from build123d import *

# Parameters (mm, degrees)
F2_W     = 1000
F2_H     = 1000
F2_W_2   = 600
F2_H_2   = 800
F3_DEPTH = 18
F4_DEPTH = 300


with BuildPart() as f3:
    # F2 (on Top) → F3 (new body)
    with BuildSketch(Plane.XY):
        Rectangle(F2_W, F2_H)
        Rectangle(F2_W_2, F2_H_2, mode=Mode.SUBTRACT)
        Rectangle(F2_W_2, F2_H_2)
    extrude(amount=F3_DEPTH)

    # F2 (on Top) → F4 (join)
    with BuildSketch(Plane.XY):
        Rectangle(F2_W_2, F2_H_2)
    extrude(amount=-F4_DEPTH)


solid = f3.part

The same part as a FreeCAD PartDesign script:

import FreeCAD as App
import Part
import Sketcher

V = App.Vector
Q = App.Units.Quantity

doc = App.newDocument("Part")
body = doc.addObject("PartDesign::Body", "Body")

# Sketch on XY plane
sketch1 = doc.addObject("Sketcher::SketchObject", "Sketch")
body.addObject(sketch1)
sketch1.AttachmentSupport = (doc.XY_Plane, [""])
sketch1.MapMode = "FlatFace"
sketch1.addGeometry([
    Part.LineSegment(V(-500, 500, 0), V(-500, -500, 0)),
    Part.LineSegment(V(-500, -500, 0), V(500, -500, 0)),
    Part.LineSegment(V(500, -500, 0), V(500, 500, 0)),
    Part.LineSegment(V(500, 500, 0), V(-500, 500, 0)),
], False)
sketch1.addConstraint([
    Sketcher.Constraint("Coincident", 0, 2, 1, 1),
    Sketcher.Constraint("Coincident", 1, 2, 2, 1),
    Sketcher.Constraint("Coincident", 2, 2, 3, 1),
    Sketcher.Constraint("Coincident", 3, 2, 0, 1),
    Sketcher.Constraint("Vertical", 0),
    Sketcher.Constraint("Horizontal", 1),
    Sketcher.Constraint("Vertical", 2),
    Sketcher.Constraint("Horizontal", 3),
    Sketcher.Constraint("Symmetric", 0, 2, 2, 2, -1, 1),
    Sketcher.Constraint("Equal", 3, 0),
    Sketcher.Constraint("DistanceX", 1, 1, 1, 2, Q("1000 mm")),
])
pad1 = doc.addObject("PartDesign::Pad", "Pad")
body.addObject(pad1)
pad1.Profile = sketch1
pad1.Length = 18

# Sketch on XY plane
sketch2 = doc.addObject("Sketcher::SketchObject", "Sketch001")
body.addObject(sketch2)
sketch2.AttachmentSupport = (doc.XY_Plane, [""])
sketch2.MapMode = "FlatFace"
sketch2.addGeometry([
    Part.LineSegment(V(-300, 400, 0), V(-300, -400, 0)),
    Part.LineSegment(V(-300, -400, 0), V(300, -400, 0)),
    Part.LineSegment(V(300, -400, 0), V(300, 400, 0)),
    Part.LineSegment(V(300, 400, 0), V(-300, 400, 0)),
], False)
sketch2.addConstraint([
    Sketcher.Constraint("Coincident", 0, 2, 1, 1),
    Sketcher.Constraint("Coincident", 1, 2, 2, 1),
    Sketcher.Constraint("Coincident", 2, 2, 3, 1),
    Sketcher.Constraint("Coincident", 3, 2, 0, 1),
    Sketcher.Constraint("Vertical", 0),
    Sketcher.Constraint("Horizontal", 1),
    Sketcher.Constraint("Vertical", 2),
    Sketcher.Constraint("Horizontal", 3),
    Sketcher.Constraint("Symmetric", 0, 2, 2, 2, -1, 1),
    Sketcher.Constraint("DistanceX", 1, 1, 1, 2, Q("600 mm")),
    Sketcher.Constraint("DistanceY", 0, 2, 0, 1, Q("800 mm")),
])
pad2 = doc.addObject("PartDesign::Pad", "Pad001")
body.addObject(pad2)
pad2.Profile = sketch2
pad2.Length = 300
pad2.Reversed = True

doc.recompute()
